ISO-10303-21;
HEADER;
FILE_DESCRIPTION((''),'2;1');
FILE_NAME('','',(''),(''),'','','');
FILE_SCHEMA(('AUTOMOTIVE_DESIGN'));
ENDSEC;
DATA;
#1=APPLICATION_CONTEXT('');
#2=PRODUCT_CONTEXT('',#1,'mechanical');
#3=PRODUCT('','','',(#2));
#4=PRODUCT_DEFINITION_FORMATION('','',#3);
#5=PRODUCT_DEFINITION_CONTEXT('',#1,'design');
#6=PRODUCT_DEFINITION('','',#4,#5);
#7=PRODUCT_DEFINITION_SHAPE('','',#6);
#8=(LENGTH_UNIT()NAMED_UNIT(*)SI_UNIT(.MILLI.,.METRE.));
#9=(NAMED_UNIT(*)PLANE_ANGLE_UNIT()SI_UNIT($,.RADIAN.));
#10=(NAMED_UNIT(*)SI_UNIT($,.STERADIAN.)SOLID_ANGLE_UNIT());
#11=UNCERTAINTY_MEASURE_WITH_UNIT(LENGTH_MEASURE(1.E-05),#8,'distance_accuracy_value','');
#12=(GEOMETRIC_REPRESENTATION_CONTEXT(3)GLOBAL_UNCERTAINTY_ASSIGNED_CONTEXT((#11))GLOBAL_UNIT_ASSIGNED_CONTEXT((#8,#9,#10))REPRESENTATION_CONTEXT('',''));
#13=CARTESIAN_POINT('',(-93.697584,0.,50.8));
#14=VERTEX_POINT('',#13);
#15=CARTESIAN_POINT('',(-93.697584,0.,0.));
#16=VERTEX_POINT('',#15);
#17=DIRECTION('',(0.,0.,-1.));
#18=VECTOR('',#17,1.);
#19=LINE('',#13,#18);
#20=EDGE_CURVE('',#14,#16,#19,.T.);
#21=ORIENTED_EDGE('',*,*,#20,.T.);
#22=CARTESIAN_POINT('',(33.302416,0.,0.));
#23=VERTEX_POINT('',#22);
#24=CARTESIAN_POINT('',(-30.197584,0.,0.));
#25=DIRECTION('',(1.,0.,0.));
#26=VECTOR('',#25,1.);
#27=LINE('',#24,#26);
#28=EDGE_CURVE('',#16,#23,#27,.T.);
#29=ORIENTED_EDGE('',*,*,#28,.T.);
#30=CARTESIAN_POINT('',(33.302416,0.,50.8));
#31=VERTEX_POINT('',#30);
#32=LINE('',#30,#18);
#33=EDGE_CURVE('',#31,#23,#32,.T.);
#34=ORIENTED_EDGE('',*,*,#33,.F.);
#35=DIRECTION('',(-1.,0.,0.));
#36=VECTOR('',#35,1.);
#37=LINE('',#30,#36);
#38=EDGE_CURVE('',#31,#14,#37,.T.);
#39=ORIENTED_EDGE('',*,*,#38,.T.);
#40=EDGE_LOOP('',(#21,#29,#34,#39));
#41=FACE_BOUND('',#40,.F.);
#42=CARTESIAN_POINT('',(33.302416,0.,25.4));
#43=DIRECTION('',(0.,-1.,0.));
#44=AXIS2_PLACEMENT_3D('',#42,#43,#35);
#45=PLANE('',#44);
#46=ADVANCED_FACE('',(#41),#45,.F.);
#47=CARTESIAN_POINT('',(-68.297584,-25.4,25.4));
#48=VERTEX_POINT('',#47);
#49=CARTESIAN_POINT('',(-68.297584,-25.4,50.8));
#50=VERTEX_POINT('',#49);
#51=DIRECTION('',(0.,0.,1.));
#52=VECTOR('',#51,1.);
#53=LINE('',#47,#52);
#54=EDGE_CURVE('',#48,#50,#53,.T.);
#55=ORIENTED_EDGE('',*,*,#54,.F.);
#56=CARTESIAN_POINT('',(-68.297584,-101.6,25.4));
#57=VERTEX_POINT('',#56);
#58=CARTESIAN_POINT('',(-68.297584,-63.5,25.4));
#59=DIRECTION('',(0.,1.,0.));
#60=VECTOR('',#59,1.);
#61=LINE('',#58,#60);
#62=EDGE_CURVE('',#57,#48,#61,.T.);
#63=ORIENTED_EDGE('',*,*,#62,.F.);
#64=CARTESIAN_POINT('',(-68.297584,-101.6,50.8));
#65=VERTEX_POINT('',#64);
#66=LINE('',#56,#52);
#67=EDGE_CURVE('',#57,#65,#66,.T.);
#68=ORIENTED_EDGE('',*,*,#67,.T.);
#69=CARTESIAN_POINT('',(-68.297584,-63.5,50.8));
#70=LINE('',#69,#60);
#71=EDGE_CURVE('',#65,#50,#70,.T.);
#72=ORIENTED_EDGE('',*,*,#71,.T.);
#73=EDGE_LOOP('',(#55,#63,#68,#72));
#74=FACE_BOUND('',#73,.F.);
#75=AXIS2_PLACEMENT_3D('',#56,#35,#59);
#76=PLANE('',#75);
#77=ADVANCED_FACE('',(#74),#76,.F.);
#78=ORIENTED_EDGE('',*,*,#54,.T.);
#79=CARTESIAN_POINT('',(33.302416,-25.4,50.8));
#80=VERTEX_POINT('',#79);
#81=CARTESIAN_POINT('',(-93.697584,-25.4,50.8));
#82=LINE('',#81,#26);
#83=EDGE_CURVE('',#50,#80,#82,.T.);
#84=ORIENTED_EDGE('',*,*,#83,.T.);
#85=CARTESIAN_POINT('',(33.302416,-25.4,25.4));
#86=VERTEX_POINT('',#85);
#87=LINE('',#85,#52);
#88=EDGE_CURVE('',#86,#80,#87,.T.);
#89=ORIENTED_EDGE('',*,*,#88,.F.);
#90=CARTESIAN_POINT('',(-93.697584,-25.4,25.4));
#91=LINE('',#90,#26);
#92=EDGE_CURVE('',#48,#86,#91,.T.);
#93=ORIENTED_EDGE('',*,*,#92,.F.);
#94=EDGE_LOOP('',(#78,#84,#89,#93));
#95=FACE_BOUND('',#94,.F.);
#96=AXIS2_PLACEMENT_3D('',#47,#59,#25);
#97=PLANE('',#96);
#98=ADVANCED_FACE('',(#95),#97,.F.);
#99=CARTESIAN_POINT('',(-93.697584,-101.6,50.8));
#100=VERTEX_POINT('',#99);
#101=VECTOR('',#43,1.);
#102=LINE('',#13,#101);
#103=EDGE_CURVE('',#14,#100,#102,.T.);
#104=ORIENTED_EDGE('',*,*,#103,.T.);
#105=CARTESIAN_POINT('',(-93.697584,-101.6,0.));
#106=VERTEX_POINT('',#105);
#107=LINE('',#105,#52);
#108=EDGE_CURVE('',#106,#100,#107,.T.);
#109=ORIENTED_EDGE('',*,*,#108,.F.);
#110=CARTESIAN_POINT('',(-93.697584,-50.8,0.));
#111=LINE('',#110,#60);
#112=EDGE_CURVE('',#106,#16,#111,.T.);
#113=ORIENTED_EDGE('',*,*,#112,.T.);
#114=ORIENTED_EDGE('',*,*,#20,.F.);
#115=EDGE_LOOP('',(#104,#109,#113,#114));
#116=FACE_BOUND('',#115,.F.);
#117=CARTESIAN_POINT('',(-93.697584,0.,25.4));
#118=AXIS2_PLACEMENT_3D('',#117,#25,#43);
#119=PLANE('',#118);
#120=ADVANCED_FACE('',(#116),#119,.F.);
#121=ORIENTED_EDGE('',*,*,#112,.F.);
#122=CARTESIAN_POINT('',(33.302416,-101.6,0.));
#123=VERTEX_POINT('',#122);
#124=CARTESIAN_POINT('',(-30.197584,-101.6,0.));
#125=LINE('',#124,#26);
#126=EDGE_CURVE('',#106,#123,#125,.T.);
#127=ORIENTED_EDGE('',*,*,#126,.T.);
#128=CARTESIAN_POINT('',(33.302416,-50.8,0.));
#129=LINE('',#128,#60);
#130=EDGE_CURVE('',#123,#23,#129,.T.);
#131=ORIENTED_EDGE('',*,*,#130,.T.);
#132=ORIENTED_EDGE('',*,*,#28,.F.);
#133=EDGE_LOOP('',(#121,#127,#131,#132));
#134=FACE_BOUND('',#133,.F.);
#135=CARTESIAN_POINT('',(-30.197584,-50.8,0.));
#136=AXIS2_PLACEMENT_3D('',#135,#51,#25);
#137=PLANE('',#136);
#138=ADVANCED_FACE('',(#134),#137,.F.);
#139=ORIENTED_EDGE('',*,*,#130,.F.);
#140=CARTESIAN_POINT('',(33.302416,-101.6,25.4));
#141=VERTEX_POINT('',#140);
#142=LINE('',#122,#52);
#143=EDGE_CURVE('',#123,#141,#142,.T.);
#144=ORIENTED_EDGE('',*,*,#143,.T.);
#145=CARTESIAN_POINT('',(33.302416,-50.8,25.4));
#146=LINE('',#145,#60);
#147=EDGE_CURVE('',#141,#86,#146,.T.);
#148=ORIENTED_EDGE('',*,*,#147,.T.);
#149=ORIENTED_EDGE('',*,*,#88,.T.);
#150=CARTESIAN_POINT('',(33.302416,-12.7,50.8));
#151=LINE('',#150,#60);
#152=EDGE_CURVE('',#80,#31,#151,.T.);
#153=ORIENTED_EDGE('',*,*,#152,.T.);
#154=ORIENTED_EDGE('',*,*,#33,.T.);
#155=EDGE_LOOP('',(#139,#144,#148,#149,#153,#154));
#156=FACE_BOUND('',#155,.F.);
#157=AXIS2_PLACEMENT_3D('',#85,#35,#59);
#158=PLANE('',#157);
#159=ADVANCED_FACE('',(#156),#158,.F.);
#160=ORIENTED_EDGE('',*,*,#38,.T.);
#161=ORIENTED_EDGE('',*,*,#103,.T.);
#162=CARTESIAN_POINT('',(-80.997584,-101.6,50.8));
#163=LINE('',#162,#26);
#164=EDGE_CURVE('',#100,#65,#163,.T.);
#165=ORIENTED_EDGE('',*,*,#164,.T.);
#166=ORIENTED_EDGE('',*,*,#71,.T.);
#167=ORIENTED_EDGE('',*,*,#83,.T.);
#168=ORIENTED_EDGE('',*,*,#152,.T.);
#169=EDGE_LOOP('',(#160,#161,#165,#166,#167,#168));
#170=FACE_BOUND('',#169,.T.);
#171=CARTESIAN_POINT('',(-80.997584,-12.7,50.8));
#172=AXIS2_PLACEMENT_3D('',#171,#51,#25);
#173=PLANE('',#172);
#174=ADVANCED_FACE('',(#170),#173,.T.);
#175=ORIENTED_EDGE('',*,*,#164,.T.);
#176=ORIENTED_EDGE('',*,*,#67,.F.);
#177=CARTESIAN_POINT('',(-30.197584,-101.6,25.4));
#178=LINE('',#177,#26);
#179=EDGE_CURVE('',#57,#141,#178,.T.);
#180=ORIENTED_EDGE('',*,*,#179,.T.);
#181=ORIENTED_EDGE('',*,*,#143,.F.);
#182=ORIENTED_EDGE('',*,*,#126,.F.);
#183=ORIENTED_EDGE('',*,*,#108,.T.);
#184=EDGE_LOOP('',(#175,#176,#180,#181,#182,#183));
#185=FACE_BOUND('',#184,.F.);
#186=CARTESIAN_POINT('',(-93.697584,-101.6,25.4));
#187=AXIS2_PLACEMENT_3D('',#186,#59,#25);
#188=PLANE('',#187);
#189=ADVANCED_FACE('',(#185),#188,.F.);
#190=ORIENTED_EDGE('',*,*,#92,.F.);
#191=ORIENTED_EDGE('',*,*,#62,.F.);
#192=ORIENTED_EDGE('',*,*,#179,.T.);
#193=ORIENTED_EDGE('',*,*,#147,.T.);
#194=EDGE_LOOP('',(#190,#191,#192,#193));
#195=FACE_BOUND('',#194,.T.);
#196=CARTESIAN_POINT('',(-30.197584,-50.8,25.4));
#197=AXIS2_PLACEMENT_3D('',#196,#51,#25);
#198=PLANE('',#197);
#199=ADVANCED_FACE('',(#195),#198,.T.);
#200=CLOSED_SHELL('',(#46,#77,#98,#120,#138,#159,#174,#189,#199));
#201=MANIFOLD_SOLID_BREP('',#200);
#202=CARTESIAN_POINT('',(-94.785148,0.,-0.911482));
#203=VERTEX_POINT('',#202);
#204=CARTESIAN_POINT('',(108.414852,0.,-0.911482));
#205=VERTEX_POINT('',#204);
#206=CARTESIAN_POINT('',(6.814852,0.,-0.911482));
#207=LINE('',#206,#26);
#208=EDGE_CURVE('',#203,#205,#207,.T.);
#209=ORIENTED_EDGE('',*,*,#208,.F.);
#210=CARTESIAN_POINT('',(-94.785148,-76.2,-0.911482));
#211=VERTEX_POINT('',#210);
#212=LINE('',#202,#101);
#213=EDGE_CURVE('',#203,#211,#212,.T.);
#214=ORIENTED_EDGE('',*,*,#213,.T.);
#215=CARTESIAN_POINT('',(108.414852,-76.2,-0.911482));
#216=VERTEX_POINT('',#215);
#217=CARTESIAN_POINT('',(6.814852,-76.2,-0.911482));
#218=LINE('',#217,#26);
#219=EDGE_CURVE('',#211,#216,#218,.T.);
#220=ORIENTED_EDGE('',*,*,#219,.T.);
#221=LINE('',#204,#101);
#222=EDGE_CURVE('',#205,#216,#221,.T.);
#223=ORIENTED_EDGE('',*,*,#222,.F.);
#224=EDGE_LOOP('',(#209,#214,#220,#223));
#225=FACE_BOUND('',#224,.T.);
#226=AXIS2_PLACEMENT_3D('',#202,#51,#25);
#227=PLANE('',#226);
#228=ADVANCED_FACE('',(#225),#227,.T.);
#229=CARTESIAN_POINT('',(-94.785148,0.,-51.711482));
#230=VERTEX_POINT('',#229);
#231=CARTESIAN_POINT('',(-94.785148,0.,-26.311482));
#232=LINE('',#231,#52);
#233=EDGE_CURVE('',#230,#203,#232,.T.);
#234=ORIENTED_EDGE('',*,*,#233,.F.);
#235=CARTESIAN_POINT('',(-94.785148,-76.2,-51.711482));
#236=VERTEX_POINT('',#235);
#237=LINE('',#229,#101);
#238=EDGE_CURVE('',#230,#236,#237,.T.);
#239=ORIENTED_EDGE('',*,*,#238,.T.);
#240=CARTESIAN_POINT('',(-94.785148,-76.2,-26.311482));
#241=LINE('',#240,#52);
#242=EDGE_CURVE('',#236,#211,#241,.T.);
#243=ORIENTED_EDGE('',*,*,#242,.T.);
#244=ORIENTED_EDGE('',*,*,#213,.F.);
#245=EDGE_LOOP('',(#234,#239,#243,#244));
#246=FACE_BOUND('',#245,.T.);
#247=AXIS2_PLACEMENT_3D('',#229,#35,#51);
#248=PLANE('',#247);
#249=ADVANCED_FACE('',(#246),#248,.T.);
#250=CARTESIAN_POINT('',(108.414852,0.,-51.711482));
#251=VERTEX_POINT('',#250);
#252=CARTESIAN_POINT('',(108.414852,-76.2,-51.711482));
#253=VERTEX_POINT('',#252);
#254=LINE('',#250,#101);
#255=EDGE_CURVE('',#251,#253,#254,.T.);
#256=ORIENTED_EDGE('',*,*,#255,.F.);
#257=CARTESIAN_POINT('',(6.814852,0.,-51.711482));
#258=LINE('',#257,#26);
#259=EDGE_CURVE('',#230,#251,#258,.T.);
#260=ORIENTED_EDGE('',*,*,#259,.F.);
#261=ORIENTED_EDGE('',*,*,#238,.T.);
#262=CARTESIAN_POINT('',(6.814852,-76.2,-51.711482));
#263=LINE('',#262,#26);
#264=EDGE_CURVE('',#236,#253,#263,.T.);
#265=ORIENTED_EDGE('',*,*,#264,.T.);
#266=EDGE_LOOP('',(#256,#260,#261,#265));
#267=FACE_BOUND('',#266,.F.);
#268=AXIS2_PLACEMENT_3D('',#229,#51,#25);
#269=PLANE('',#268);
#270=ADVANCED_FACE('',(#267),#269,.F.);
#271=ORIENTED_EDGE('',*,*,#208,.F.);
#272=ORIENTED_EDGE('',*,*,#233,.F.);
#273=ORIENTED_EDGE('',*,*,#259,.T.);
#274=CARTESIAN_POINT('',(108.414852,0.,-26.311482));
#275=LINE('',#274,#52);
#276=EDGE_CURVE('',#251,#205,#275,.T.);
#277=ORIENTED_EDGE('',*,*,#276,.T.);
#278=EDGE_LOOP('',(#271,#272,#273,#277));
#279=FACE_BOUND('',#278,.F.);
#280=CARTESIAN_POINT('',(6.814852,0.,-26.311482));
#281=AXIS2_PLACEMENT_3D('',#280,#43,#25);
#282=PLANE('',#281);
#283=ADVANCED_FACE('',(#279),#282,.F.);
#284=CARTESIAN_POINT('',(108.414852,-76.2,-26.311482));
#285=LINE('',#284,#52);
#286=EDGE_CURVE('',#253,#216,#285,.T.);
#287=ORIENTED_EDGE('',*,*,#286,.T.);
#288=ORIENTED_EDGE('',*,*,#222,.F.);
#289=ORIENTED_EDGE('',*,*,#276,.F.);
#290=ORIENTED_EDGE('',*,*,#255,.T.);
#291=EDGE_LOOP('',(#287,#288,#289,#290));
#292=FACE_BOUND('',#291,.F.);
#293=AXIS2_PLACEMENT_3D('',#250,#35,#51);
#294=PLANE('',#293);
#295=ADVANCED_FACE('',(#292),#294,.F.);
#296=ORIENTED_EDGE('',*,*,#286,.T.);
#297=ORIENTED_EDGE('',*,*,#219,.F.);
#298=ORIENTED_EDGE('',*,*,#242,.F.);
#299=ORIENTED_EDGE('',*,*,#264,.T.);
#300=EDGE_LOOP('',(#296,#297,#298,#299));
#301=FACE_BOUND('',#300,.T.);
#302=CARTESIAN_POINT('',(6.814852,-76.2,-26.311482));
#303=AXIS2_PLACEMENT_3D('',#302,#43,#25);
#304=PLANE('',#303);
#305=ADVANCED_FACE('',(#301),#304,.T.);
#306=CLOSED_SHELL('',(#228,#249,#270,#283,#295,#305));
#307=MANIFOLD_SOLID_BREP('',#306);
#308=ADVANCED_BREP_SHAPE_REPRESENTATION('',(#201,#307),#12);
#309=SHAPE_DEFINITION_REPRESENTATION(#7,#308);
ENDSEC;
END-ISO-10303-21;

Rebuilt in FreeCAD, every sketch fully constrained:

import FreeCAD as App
import Part
import Sketcher

V = App.Vector
Q = App.Units.Quantity


def add_polygon(sketch, points):
    """Adds a closed chain of lines whose ends are joined by coincident constraints."""
    first, n = sketch.GeometryCount, len(points)
    for a, b in zip(points, points[1:] + points[:1]):
        sketch.addGeometry(Part.LineSegment(App.Vector(*a, 0), App.Vector(*b, 0)), False)
    for i in range(n):
        sketch.addConstraint(Sketcher.Constraint("Coincident", first + i, 2, first + (i + 1) % n, 1))

doc = App.newDocument("Part")
body = doc.addObject("PartDesign::Body", "Body")

sketch1 = doc.addObject("Sketcher::SketchObject", "Sketch")
body.addObject(sketch1)
sketch1.AttachmentSupport = (doc.XZ_Plane, [""])
sketch1.MapMode = "FlatFace"
add_polygon(sketch1, [(-95, -1), (-95, -52), (108, -52), (108, -1)])
sketch1.addConstraint([
    Sketcher.Constraint("Vertical", 0),
    Sketcher.Constraint("Horizontal", 1),
    Sketcher.Constraint("Vertical", 2),
    Sketcher.Constraint("Horizontal", 3),
    Sketcher.Constraint("DistanceX", 1, 1, 1, 2, Q("8 in")),
    Sketcher.Constraint("DistanceY", 0, 2, 0, 1, Q("2 in")),
    Sketcher.Constraint("DistanceX", 0, 2, -1, 1, 94.785148),
    Sketcher.Constraint("DistanceY", 0, 2, -1, 1, 51.711482),
])
pad1 = doc.addObject("PartDesign::Pad", "Pad")
body.addObject(pad1)
pad1.Profile = sketch1
pad1.Length = Q("3 in")
body2 = doc.addObject("PartDesign::Body", "Body001")

sketch2 = doc.addObject("Sketcher::SketchObject", "Sketch001")
body2.addObject(sketch2)
sketch2.AttachmentSupport = (doc.getObject("XY_Plane001"), [""])
sketch2.MapMode = "FlatFace"
add_polygon(sketch2, [(-94, 0), (-94, -102), (33, -102), (33, 0)])
sketch2.addConstraint([
    Sketcher.Constraint("Vertical", 0),
    Sketcher.Constraint("Horizontal", 1),
    Sketcher.Constraint("Vertical", 2),
    Sketcher.Constraint("Horizontal", 3),
    Sketcher.Constraint("PointOnObject", 2, 2, -1),
    Sketcher.Constraint("DistanceX", 1, 1, 1, 2, Q("5 in")),
    Sketcher.Constraint("DistanceY", 0, 2, 0, 1, Q("4 in")),
    Sketcher.Constraint("DistanceX", 0, 2, -1, 1, 93.697584),
])
pad2 = doc.addObject("PartDesign::Pad", "Pad001")
body2.addObject(pad2)
pad2.Profile = sketch2
pad2.Length = Q("1 in")

sketch3 = doc.addObject("Sketcher::SketchObject", "Sketch002")
body2.addObject(sketch3)
sketch3.AttachmentSupport = (doc.getObject("XY_Plane001"), [""])
sketch3.MapMode = "FlatFace"
sketch3.AttachmentOffset = App.Placement(V(0, 0, 1 * 25.4), App.Rotation())
add_polygon(sketch3, [(-94, 0), (-94, -102), (-68, -102), (-68, -25), (33, -25), (33, 0)])
sketch3.addConstraint([
    Sketcher.Constraint("Vertical", 0),
    Sketcher.Constraint("Horizontal", 1),
    Sketcher.Constraint("Vertical", 2),
    Sketcher.Constraint("Horizontal", 3),
    Sketcher.Constraint("Vertical", 4),
    Sketcher.Constraint("Horizontal", 5),
    Sketcher.Constraint("PointOnObject", 4, 2, -1),
    Sketcher.Constraint("Equal", 3, 0),
    Sketcher.Constraint("Equal", 1, 4),
    Sketcher.Constraint("DistanceX", 1, 1, 1, 2, Q("1 in")),
    Sketcher.Constraint("DistanceX", 3, 1, 3, 2, Q("4 in")),
    Sketcher.Constraint("DistanceX", 0, 2, -1, 1, 93.697584),
])
pad3 = doc.addObject("PartDesign::Pad", "Pad002")
body2.addObject(pad3)
pad3.Profile = sketch3
pad3.Length = Q("1 in")

doc.recompute()
